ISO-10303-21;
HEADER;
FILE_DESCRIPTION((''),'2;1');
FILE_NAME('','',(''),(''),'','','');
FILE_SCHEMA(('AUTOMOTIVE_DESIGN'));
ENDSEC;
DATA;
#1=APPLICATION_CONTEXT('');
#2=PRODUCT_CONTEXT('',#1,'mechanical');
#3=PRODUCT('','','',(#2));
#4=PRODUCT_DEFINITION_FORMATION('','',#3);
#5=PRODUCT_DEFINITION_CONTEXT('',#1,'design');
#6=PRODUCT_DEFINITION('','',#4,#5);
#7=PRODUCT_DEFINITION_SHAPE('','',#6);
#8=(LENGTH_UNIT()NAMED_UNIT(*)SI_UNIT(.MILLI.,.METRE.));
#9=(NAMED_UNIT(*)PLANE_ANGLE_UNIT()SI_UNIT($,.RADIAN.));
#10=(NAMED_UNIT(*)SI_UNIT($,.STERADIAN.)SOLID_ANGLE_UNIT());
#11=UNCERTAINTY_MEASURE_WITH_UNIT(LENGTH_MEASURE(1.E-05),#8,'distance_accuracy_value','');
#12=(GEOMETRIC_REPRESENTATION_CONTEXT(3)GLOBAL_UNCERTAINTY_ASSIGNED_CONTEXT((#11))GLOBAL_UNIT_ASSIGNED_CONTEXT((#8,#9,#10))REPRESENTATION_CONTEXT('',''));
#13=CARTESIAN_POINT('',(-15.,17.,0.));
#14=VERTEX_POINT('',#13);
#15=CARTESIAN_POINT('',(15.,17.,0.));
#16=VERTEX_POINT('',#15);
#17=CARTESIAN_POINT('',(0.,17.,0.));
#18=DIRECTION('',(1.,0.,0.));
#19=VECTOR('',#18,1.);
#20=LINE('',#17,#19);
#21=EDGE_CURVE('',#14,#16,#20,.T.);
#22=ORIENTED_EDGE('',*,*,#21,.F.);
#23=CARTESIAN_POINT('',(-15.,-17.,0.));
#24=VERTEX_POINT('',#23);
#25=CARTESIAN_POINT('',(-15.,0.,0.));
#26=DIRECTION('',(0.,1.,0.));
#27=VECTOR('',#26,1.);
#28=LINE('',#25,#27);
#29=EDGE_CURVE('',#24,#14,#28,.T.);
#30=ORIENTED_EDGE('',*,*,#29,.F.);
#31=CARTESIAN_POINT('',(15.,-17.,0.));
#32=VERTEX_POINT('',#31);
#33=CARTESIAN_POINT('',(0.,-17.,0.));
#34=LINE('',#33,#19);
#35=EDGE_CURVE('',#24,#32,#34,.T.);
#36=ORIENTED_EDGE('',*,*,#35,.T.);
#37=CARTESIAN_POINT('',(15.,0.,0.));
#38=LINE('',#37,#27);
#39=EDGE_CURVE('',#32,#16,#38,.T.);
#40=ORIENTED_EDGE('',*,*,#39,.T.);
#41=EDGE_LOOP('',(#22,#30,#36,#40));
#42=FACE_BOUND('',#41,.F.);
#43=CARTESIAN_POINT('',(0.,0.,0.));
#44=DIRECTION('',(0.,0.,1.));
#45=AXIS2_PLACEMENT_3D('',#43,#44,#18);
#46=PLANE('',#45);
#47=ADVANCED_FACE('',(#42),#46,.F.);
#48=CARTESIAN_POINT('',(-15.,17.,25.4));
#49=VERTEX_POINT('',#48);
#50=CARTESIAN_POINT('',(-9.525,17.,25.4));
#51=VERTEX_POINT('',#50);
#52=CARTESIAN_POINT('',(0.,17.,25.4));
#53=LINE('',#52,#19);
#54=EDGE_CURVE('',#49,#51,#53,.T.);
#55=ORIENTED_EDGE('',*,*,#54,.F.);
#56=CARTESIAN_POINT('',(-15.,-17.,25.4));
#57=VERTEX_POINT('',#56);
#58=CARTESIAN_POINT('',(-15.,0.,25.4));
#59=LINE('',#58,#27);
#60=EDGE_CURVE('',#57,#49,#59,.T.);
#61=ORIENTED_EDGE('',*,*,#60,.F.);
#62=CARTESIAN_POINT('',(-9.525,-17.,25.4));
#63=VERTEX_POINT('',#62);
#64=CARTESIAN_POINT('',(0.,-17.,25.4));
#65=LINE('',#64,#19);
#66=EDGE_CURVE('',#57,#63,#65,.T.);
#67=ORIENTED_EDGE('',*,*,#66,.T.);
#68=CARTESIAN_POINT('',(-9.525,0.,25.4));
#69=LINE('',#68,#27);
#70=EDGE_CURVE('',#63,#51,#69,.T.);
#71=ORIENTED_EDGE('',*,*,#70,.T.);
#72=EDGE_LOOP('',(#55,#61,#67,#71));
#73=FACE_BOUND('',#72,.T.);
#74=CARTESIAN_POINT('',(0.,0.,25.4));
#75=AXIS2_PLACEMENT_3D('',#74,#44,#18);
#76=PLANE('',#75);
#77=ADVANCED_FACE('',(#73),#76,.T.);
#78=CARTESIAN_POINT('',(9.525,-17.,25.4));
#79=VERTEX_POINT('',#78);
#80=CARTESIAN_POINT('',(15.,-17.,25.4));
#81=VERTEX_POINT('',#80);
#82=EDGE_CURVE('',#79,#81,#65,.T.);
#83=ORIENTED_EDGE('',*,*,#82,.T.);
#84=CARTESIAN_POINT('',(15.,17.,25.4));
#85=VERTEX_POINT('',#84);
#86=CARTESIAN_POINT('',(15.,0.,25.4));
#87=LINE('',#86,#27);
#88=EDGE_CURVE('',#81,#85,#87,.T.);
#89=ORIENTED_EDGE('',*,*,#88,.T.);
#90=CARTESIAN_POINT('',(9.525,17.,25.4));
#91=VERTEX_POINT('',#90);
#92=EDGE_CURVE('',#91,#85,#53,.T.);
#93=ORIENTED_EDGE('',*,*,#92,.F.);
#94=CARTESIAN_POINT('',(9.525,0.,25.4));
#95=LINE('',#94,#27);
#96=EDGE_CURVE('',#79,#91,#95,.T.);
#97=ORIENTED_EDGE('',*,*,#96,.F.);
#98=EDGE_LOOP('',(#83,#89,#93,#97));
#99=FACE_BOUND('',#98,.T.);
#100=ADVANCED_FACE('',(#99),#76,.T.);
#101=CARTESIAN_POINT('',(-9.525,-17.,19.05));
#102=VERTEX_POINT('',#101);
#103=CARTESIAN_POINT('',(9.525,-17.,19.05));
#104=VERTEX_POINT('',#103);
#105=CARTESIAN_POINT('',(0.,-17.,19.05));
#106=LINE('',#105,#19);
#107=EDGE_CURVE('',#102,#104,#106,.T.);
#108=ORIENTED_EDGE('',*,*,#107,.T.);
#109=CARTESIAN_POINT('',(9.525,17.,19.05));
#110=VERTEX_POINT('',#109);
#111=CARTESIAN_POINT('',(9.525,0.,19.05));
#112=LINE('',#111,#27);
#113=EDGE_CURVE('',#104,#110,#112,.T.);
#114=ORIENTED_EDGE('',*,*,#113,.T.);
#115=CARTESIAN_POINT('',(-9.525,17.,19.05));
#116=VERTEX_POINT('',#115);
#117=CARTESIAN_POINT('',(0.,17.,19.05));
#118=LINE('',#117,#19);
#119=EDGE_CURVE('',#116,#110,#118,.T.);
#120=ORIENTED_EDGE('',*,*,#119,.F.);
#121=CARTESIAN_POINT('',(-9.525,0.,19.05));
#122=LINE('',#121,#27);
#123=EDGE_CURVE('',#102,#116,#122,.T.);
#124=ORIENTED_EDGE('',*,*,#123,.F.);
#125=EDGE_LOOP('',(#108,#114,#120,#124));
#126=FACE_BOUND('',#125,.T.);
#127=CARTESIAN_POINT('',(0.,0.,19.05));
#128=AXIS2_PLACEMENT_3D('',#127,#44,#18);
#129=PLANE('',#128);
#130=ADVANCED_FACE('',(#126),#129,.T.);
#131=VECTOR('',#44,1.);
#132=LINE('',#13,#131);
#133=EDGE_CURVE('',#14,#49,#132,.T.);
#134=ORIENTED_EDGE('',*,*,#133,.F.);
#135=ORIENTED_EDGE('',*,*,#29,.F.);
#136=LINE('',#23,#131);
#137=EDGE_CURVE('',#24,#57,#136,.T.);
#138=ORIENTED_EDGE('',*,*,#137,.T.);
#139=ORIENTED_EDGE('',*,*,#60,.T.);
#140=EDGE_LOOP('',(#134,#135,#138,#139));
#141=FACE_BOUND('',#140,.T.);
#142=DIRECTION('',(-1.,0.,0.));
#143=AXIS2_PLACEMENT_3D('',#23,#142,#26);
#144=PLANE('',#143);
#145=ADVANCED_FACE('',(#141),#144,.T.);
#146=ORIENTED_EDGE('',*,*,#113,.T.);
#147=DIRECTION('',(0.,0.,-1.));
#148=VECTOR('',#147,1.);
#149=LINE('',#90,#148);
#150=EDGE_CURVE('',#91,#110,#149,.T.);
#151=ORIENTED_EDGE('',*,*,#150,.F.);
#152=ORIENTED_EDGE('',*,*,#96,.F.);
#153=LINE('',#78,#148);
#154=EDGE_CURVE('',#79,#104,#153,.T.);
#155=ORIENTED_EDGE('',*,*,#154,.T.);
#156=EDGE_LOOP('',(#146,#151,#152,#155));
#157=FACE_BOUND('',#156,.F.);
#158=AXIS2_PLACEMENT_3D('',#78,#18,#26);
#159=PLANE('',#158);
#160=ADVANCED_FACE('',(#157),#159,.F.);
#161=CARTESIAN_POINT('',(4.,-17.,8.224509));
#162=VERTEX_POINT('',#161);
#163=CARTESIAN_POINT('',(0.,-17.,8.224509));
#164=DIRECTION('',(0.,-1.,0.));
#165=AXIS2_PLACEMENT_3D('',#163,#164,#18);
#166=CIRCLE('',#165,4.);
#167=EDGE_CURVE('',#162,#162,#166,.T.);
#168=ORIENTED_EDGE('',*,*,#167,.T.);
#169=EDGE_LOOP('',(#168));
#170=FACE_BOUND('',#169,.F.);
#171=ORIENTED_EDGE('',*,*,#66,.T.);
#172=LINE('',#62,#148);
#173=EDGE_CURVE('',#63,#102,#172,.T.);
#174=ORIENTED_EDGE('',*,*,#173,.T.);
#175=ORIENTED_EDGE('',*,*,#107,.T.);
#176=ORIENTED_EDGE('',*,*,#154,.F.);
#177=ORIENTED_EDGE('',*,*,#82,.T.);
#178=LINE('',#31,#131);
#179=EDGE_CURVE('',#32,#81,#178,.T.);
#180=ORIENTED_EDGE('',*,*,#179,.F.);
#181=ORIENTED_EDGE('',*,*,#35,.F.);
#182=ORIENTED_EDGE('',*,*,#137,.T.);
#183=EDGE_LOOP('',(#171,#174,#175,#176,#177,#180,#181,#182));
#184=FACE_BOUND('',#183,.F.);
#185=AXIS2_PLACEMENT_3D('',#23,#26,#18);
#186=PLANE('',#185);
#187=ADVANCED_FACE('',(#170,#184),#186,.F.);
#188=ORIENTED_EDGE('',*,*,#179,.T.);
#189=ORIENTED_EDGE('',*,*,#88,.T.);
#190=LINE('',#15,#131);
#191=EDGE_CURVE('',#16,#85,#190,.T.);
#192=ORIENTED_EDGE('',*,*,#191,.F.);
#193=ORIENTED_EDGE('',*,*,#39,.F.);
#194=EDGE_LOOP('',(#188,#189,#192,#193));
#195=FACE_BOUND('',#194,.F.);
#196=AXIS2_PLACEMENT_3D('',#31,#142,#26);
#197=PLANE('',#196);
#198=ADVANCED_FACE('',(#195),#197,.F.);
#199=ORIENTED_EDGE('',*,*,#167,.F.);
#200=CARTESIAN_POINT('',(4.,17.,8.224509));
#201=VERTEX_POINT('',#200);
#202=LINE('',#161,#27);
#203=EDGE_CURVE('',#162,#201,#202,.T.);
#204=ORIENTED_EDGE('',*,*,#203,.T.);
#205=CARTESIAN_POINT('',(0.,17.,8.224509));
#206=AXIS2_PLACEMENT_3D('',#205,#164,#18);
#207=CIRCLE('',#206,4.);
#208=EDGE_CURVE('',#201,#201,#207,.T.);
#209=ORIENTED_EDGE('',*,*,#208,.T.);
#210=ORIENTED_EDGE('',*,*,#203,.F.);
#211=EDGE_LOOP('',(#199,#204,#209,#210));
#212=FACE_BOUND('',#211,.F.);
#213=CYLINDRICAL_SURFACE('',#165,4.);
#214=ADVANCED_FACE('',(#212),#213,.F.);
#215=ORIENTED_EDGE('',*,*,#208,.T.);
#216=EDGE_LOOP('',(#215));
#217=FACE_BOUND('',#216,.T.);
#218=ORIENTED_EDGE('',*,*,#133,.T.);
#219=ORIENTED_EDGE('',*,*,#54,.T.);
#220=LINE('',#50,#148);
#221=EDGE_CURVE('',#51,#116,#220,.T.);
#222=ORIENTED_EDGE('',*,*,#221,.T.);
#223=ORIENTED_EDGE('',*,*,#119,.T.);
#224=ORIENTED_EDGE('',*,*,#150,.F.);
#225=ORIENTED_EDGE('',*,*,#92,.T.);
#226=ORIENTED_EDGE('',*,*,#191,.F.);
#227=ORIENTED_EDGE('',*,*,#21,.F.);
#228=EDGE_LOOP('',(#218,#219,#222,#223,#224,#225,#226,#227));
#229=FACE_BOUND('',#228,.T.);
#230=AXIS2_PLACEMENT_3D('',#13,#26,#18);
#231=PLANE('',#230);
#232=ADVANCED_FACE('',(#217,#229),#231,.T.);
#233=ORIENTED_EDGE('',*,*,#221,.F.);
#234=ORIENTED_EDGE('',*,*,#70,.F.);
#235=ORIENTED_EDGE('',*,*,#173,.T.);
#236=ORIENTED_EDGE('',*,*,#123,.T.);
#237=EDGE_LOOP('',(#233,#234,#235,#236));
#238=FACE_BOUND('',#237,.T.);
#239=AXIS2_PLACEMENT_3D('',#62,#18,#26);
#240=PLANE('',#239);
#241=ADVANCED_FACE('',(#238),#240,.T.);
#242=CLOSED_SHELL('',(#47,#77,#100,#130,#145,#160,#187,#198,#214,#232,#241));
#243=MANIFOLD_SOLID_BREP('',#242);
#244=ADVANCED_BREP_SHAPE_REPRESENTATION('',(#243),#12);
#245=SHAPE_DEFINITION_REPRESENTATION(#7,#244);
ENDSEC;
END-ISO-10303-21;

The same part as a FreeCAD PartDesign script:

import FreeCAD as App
import Part
import Sketcher

V = App.Vector
Q = App.Units.Quantity


def add_polygon(sketch, points):
    """Adds a closed chain of lines whose ends are joined by coincident constraints."""
    first, n = sketch.GeometryCount, len(points)
    for a, b in zip(points, points[1:] + points[:1]):
        sketch.addGeometry(Part.LineSegment(App.Vector(*a, 0), App.Vector(*b, 0)), False)
    for i in range(n):
        sketch.addConstraint(Sketcher.Constraint("Coincident", first + i, 2, first + (i + 1) % n, 1))

doc = App.newDocument("Part")
params = doc.addObject("Spreadsheet::Sheet", "Params")
for row, (alias, value) in enumerate([
    ("sketch1_width", "30 mm"),
    ("sketch1_height", "34 mm"),
    ("pad1_length", "25.4 mm"),
    ("sketch2_diameter", "8 mm"),
    ("sketch3_height", "34 mm"),
    ("sketch3_width", "19.05 mm"),
    ("pocket2_length", "6.35 mm"),
], start=1):
    params.set(f"A{row}", alias)
    params.set(f"B{row}", "=" + value)
    params.setAlias(f"B{row}", alias)

body = doc.addObject("PartDesign::Body", "Body")

# Sketch on XY plane
sketch1 = body.newObject("Sketcher::SketchObject", "Sketch")
sketch1.AttachmentSupport = (doc.getObject("XY_Plane"), [""])
sketch1.MapMode = "FlatFace"
add_polygon(sketch1, [(-15, 17), (-15, -17), (15, -17), (15, 17)])  # lines 0-3
sketch1.addConstraint([
    Sketcher.Constraint("Vertical", 0),
    Sketcher.Constraint("Horizontal", 1),
    Sketcher.Constraint("Vertical", 2),
    Sketcher.Constraint("Horizontal", 3),
    Sketcher.Constraint("Symmetric", 0, 2, 2, 2, -1, 1),
    Sketcher.Constraint("DistanceX", 1, 1, 1, 2, Q("30 mm")),
    Sketcher.Constraint("DistanceY", 0, 2, 0, 1, Q("34 mm")),
])
sketch1.setExpression("Constraints[9]", "Params.sketch1_width")
sketch1.setExpression("Constraints[10]", "Params.sketch1_height")
pad1 = body.newObject("PartDesign::Pad", "Pad")
pad1.Profile = sketch1
pad1.setExpression("Length", "Params.pad1_length")

# Sketch on XZ plane
sketch2 = body.newObject("Sketcher::SketchObject", "Sketch001")
sketch2.AttachmentSupport = (doc.getObject("XZ_Plane"), [""])
sketch2.MapMode = "FlatFace"
sketch2.AttachmentOffset = App.Placement(V(0, 0, 17), App.Rotation())
sketch2.addGeometry(Part.Circle(V(0, 8.2, 0), V(0, 0, 1), 4), False)
sketch2.addConstraint([
    Sketcher.Constraint("PointOnObject", 0, 3, -2),
    Sketcher.Constraint("Diameter", 0, Q("8 mm")),
    Sketcher.Constraint("DistanceY", -1, 1, 0, 3, Q("8.224509 mm")),
])
sketch2.setExpression("Constraints[1]", "Params.sketch2_diameter")
pocket1 = body.newObject("PartDesign::Pocket", "Pocket")
pocket1.Profile = sketch2
pocket1.Type = "ThroughAll"

# Sketch on XY plane
sketch3 = body.newObject("Sketcher::SketchObject", "Sketch002")
sketch3.AttachmentSupport = (doc.getObject("XY_Plane"), [""])
sketch3.MapMode = "FlatFace"
sketch3.AttachmentOffset = App.Placement(V(0, 0, 25.4), App.Rotation())
add_polygon(sketch3, [(-10, 17), (-10, -17), (10, -17), (10, 17)])  # lines 0-3
sketch3.addConstraint([
    Sketcher.Constraint("Vertical", 0),
    Sketcher.Constraint("Horizontal", 1),
    Sketcher.Constraint("Vertical", 2),
    Sketcher.Constraint("Horizontal", 3),
    Sketcher.Constraint("Symmetric", 0, 2, 2, 2, -1, 1),
    Sketcher.Constraint("DistanceY", 0, 2, 0, 1, Q("34 mm")),
    Sketcher.Constraint("DistanceX", 1, 1, 1, 2, Q("19.05 mm")),
])
sketch3.setExpression("Constraints[9]", "Params.sketch3_height")
sketch3.setExpression("Constraints[10]", "Params.sketch3_width")
pocket2 = body.newObject("PartDesign::Pocket", "Pocket001")
pocket2.Profile = sketch3
pocket2.setExpression("Length", "Params.pocket2_length")

doc.recompute()
